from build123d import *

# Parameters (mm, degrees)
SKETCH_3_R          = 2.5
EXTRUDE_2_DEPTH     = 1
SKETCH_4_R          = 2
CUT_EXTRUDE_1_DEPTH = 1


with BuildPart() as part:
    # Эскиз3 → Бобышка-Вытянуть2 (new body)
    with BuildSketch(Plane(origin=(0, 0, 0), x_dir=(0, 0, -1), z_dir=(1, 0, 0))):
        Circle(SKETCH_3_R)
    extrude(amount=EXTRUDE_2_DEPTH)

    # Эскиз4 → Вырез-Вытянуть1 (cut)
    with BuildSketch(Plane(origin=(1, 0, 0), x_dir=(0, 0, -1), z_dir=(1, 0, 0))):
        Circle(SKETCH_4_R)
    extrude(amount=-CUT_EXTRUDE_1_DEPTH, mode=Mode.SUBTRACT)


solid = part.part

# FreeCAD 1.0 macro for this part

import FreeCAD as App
import Part
import Sketcher

V = App.Vector
Q = App.Units.Quantity

doc = App.newDocument("Part")
params = doc.addObject("Spreadsheet::Sheet", "Params")
for row, (alias, value) in enumerate([
    ("sketch1_diameter", "5 mm"),
    ("pad1_length", "1 mm"),
    ("sketch2_diameter", "4 mm"),
    ("pocket1_length", "1 mm"),
], start=1):
    params.set(f"A{row}", alias)
    params.set(f"B{row}", "=" + value)
    params.setAlias(f"B{row}", alias)

body = doc.addObject("PartDesign::Body", "Body")

# Sketch on YZ plane
sketch1 = body.newObject("Sketcher::SketchObject", "Sketch")
sketch1.AttachmentSupport = (doc.getObject("YZ_Plane"), [""])
sketch1.MapMode = "FlatFace"
sketch1.addGeometry(Part.Circle(V(0, 0, 0), V(0, 0, 1), 2.5), False)
sketch1.addConstraint([
    Sketcher.Constraint("Coincident", 0, 3, -1, 1),
    Sketcher.Constraint("Diameter", 0, Q("5 mm")),
])
sketch1.setExpression("Constraints[1]", "Params.sketch1_diameter")
pad1 = body.newObject("PartDesign::Pad", "Pad")
pad1.Profile = sketch1
pad1.setExpression("Length", "Params.pad1_length")

# Sketch on YZ plane
sketch2 = body.newObject("Sketcher::SketchObject", "Sketch001")
sketch2.AttachmentSupport = (doc.getObject("YZ_Plane"), [""])
sketch2.MapMode = "FlatFace"
sketch2.AttachmentOffset = App.Placement(V(0, 0, 1), App.Rotation())
sketch2.addGeometry(Part.Circle(V(0, 0, 0), V(0, 0, 1), 2), False)
sketch2.addConstraint([
    Sketcher.Constraint("Coincident", 0, 3, -1, 1),
    Sketcher.Constraint("Diameter", 0, Q("4 mm")),
])
sketch2.setExpression("Constraints[1]", "Params.sketch2_diameter")
pocket1 = body.newObject("PartDesign::Pocket", "Pocket")
pocket1.Profile = sketch2
pocket1.setExpression("Length", "Params.pocket1_length")

doc.recompute()
